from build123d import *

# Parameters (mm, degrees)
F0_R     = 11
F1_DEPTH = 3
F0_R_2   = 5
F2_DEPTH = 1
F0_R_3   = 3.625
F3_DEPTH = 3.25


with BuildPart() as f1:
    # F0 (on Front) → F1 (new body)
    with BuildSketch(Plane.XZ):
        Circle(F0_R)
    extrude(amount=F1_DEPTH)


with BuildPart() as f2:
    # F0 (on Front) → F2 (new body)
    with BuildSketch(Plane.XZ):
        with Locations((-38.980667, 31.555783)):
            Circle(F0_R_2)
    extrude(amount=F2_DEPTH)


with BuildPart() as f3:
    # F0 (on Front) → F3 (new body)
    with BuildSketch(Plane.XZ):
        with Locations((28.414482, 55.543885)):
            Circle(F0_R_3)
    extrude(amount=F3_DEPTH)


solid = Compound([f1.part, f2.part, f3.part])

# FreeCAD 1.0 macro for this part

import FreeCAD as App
import Part
import Sketcher

V = App.Vector

doc = App.newDocument("Part")
body = doc.addObject("PartDesign::Body", "Body")

# Sketch on XZ plane
sketch1 = doc.addObject("Sketcher::SketchObject", "Sketch")
body.addObject(sketch1)
sketch1.AttachmentSupport = (doc.XZ_Plane, [""])
sketch1.MapMode = "FlatFace"
sketch1.addGeometry(Part.Circle(V(0, 0, 0), V(0, 0, 1), 11), False)
sketch1.addConstraint([
    Sketcher.Constraint("Coincident", 0, 3, -1, 1),
    Sketcher.Constraint("Diameter", 0, 22.0),
])
pad1 = doc.addObject("PartDesign::Pad", "Pad")
body.addObject(pad1)
pad1.Profile = sketch1
pad1.Length = 3
body2 = doc.addObject("PartDesign::Body", "Body001")

# Sketch on XZ plane
sketch2 = doc.addObject("Sketcher::SketchObject", "Sketch001")
body2.addObject(sketch2)
sketch2.AttachmentSupport = (doc.getObject("XZ_Plane001"), [""])
sketch2.MapMode = "FlatFace"
sketch2.addGeometry(Part.Circle(V(-38.980667, 31.555783, 0), V(0, 0, 1), 5), False)
sketch2.addConstraint([
    Sketcher.Constraint("Diameter", 0, 10.0),
    Sketcher.Constraint("DistanceX", 0, 3, -1, 1, 38.980667),
    Sketcher.Constraint("DistanceY", -1, 1, 0, 3, 31.555783),
])
pad2 = doc.addObject("PartDesign::Pad", "Pad001")
body2.addObject(pad2)
pad2.Profile = sketch2
pad2.Length = 1
body3 = doc.addObject("PartDesign::Body", "Body002")

# Sketch on XZ plane
sketch3 = doc.addObject("Sketcher::SketchObject", "Sketch002")
body3.addObject(sketch3)
sketch3.AttachmentSupport = (doc.getObject("XZ_Plane002"), [""])
sketch3.MapMode = "FlatFace"
sketch3.addGeometry(Part.Circle(V(28.414482, 55.543885, 0), V(0, 0, 1), 3.625), False)
sketch3.addConstraint([
    Sketcher.Constraint("Diameter", 0, 7.25),
    Sketcher.Constraint("DistanceX", -1, 1, 0, 3, 28.414482),
    Sketcher.Constraint("DistanceY", -1, 1, 0, 3, 55.543885),
])
pad3 = doc.addObject("PartDesign::Pad", "Pad002")
body3.addObject(pad3)
pad3.Profile = sketch3
pad3.Length = 3.25

doc.recompute()
